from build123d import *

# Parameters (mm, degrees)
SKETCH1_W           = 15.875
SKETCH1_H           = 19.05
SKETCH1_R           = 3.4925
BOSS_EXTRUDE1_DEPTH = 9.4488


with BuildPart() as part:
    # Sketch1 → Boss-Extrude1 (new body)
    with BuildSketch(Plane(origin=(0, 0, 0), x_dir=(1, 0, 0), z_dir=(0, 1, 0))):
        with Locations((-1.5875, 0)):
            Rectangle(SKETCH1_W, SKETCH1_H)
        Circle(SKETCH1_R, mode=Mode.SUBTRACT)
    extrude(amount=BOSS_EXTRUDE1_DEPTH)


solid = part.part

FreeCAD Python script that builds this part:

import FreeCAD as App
import Part
import Sketcher
from FreeCAD import Vector
Q = App.Units.Quantity


def add_polygon(sketch, points):
    """Adds a closed chain of lines whose ends are joined by coincident constraints."""
    first, n = sketch.GeometryCount, len(points)
    for a, b in zip(points, points[1:] + points[:1]):
        sketch.addGeometry(Part.LineSegment(App.Vector(*a, 0), App.Vector(*b, 0)), False)
    for i in range(n):
        sketch.addConstraint(Sketcher.Constraint("Coincident", first + i, 2, first + (i + 1) % n, 1))

doc = App.newDocument("Part")
body = doc.addObject("PartDesign::Body", "Body")

# Sketch on XZ plane
sketch1 = body.newObject("Sketcher::SketchObject", "Sketch")
sketch1.AttachmentSupport = (doc.getObject("XZ_Plane"), [""])
sketch1.MapMode = "FlatFace"
add_polygon(sketch1, [(-9.525, -9.525), (-9.525, 9.525), (6.35, 9.525), (6.35, -9.525)])  # lines 0-3
sketch1.addGeometry(Part.Circle(Vector(0, 0, 0), Vector(0, 0, 1), 3.4925), False)  # 4
sketch1.addConstraint([
    Sketcher.Constraint("Vertical", 0),
    Sketcher.Constraint("Horizontal", 1),
    Sketcher.Constraint("Vertical", 2),
    Sketcher.Constraint("Horizontal", 3),
    Sketcher.Constraint("Coincident", 4, 3, -1, 1),
    Sketcher.Constraint("Diameter", 4, Q("0.275 in")),
    Sketcher.Constraint("DistanceY", 0, 1, 0, 2, Q("0.75 in")),
    Sketcher.Constraint("DistanceX", 1, 1, 1, 2, Q("0.625 in")),
    Sketcher.Constraint("DistanceX", -1, 1, 1, 2, Q("0.25 in")),
    Sketcher.Constraint("DistanceY", -1, 1, 0, 2, Q("0.375 in")),
])
pad1 = body.newObject("PartDesign::Pad", "Pad")
pad1.Profile = sketch1
pad1.Length = Q("0.372 in")
pad1.Reversed = True

doc.recompute()
